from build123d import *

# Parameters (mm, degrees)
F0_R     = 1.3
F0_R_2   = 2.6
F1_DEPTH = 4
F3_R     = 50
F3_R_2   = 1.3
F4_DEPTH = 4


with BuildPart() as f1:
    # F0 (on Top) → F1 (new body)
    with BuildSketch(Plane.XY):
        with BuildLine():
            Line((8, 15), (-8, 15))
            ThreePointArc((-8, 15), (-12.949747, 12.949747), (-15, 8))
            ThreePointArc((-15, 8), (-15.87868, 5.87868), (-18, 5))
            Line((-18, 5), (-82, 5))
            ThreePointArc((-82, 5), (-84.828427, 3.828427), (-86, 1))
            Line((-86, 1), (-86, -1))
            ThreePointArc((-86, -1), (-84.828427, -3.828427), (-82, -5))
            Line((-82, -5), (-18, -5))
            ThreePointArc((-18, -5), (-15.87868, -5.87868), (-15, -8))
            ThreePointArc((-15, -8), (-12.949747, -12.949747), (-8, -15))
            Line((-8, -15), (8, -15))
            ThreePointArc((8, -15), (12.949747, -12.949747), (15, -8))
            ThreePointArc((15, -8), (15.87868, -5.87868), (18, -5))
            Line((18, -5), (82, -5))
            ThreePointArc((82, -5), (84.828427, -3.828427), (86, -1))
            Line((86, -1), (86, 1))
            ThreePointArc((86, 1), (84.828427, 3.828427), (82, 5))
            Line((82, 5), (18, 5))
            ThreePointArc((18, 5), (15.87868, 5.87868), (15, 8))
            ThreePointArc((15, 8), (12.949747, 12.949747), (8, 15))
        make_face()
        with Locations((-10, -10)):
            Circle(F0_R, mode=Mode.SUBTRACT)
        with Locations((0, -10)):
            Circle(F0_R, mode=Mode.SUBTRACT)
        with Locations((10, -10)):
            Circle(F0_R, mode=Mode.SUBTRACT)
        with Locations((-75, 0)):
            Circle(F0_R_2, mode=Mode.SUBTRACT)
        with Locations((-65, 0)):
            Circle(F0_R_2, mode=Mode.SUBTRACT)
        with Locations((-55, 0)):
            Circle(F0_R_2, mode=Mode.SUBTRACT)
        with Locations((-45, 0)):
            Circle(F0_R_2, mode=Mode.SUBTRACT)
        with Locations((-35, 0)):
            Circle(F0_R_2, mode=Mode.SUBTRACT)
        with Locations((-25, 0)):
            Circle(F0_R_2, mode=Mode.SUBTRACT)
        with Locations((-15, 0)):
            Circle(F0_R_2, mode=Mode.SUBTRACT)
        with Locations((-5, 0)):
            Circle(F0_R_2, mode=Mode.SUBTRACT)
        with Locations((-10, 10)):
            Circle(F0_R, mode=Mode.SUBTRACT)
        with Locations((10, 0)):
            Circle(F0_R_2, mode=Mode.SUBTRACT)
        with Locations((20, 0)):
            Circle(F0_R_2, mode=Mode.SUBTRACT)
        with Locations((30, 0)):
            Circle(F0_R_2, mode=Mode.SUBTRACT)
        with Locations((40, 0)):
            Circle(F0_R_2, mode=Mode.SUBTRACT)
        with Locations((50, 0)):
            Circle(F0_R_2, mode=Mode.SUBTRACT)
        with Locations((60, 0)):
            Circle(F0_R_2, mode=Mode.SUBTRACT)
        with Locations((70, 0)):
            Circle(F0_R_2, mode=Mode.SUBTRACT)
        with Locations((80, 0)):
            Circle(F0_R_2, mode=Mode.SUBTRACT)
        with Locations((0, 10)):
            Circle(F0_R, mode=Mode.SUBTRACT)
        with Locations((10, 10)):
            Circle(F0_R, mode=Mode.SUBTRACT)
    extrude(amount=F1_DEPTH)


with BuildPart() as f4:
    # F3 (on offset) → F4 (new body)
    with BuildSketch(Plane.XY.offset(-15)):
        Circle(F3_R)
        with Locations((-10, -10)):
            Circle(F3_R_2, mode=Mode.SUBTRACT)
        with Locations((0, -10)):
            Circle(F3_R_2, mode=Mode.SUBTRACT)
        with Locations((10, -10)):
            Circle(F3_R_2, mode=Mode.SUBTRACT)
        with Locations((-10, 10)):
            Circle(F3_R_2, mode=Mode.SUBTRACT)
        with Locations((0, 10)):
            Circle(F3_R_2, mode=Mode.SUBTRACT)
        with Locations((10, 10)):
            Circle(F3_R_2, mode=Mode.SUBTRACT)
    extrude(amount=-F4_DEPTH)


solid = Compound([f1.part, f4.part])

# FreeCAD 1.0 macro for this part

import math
import FreeCAD as App
import Part
import Sketcher

V = App.Vector

doc = App.newDocument("Part")
body = doc.addObject("PartDesign::Body", "Body")

# Sketch on XY plane
sketch1 = body.newObject("Sketcher::SketchObject", "Sketch")
sketch1.AttachmentSupport = (doc.getObject("XY_Plane"), [""])
sketch1.MapMode = "FlatFace"
sketch1.addGeometry([
    Part.LineSegment(V(8, 15, 0), V(-8, 15, 0)),  # 0
    Part.ArcOfCircle(Part.Circle(V(-7.999998, 7.999998, 0), V(0, 0, 1), 7.000002), math.radians(90.000013), math.radians(179.999987)),  # 1
    Part.ArcOfCircle(Part.Circle(V(-18.000001, 8.000001, 0), V(0, 0, 1), 3.000001), math.radians(-89.999978), math.radians(-0.000022)),  # 2
    Part.LineSegment(V(-18, 5, 0), V(-82, 5, 0)),  # 3
    Part.ArcOfCircle(Part.Circle(V(-82, 1, 0), V(0, 0, 1), 4), math.radians(90.000006), math.radians(179.999994)),  # 4
    Part.LineSegment(V(-86, 1, 0), V(-86, -1, 0)),  # 5
    Part.ArcOfCircle(Part.Circle(V(-82, -1, 0), V(0, 0, 1), 4), math.radians(-179.999994), math.radians(-90.000006)),  # 6
    Part.LineSegment(V(-82, -5, 0), V(-18, -5, 0)),  # 7
    Part.ArcOfCircle(Part.Circle(V(-18.000001, -8.000001, 0), V(0, 0, 1), 3.000001), math.radians(0.000022), math.radians(89.999978)),  # 8
    Part.ArcOfCircle(Part.Circle(V(-7.999998, -7.999998, 0), V(0, 0, 1), 7.000002), math.radians(-179.999987), math.radians(-90.000013)),  # 9
    Part.LineSegment(V(-8, -15, 0), V(8, -15, 0)),  # 10
    Part.ArcOfCircle(Part.Circle(V(7.999998, -7.999998, 0), V(0, 0, 1), 7.000002), math.radians(-89.999987), math.radians(-0.000013)),  # 11
    Part.ArcOfCircle(Part.Circle(V(18.000001, -8.000001, 0), V(0, 0, 1), 3.000001), math.radians(90.000022), math.radians(179.999978)),  # 12
    Part.LineSegment(V(18, -5, 0), V(82, -5, 0)),  # 13
    Part.ArcOfCircle(Part.Circle(V(82, -1, 0), V(0, 0, 1), 4), math.radians(-89.999994), math.radians(-0.000006)),  # 14
    Part.LineSegment(V(86, -1, 0), V(86, 1, 0)),  # 15
    Part.ArcOfCircle(Part.Circle(V(82, 1, 0), V(0, 0, 1), 4), math.radians(0.000006), math.radians(89.999994)),  # 16
    Part.LineSegment(V(82, 5, 0), V(18, 5, 0)),  # 17
    Part.ArcOfCircle(Part.Circle(V(18.000001, 8.000001, 0), V(0, 0, 1), 3.000001), math.radians(-179.999978), math.radians(-90.000022)),  # 18
    Part.ArcOfCircle(Part.Circle(V(7.999998, 7.999998, 0), V(0, 0, 1), 7.000002), math.radians(0.000013), math.radians(89.999987)),  # 19
    Part.Circle(V(-10, -10, 0), V(0, 0, 1), 1.3),  # 20
    Part.Circle(V(0, -10, 0), V(0, 0, 1), 1.3),  # 21
    Part.Circle(V(10, -10, 0), V(0, 0, 1), 1.3),  # 22
    Part.Circle(V(-75, 0, 0), V(0, 0, 1), 2.6),  # 23
    Part.Circle(V(-65, 0, 0), V(0, 0, 1), 2.6),  # 24
    Part.Circle(V(-55, 0, 0), V(0, 0, 1), 2.6),  # 25
    Part.Circle(V(-45, 0, 0), V(0, 0, 1), 2.6),  # 26
    Part.Circle(V(-35, 0, 0), V(0, 0, 1), 2.6),  # 27
    Part.Circle(V(-25, 0, 0), V(0, 0, 1), 2.6),  # 28
    Part.Circle(V(-15, 0, 0), V(0, 0, 1), 2.6),  # 29
    Part.Circle(V(-5, 0, 0), V(0, 0, 1), 2.6),  # 30
    Part.Circle(V(-10, 10, 0), V(0, 0, 1), 1.3),  # 31
    Part.Circle(V(0, 10, 0), V(0, 0, 1), 1.3),  # 32
    Part.Circle(V(10, 0, 0), V(0, 0, 1), 2.6),  # 33
    Part.Circle(V(20, 0, 0), V(0, 0, 1), 2.6),  # 34
    Part.Circle(V(30, 0, 0), V(0, 0, 1), 2.6),  # 35
    Part.Circle(V(40, 0, 0), V(0, 0, 1), 2.6),  # 36
    Part.Circle(V(50, 0, 0), V(0, 0, 1), 2.6),  # 37
    Part.Circle(V(60, 0, 0), V(0, 0, 1), 2.6),  # 38
    Part.Circle(V(70, 0, 0), V(0, 0, 1), 2.6),  # 39
    Part.Circle(V(80, 0, 0), V(0, 0, 1), 2.6),  # 40
    Part.Circle(V(10, 10, 0), V(0, 0, 1), 1.3),  # 41
], False)
sketch1.addConstraint([
    Sketcher.Constraint("Tangent", 0, 2, 1, 1),
    Sketcher.Constraint("Tangent", 1, 2, 2, 2),
    Sketcher.Constraint("Tangent", 2, 1, 3, 1),
    Sketcher.Constraint("Tangent", 3, 2, 4, 1),
    Sketcher.Constraint("Tangent", 4, 2, 5, 1),
    Sketcher.Constraint("Tangent", 5, 2, 6, 1),
    Sketcher.Constraint("Tangent", 6, 2, 7, 1),
    Sketcher.Constraint("Tangent", 7, 2, 8, 2),
    Sketcher.Constraint("Tangent", 8, 1, 9, 1),
    Sketcher.Constraint("Tangent", 9, 2, 10, 1),
    Sketcher.Constraint("Tangent", 10, 2, 11, 1),
    Sketcher.Constraint("Tangent", 11, 2, 12, 2),
    Sketcher.Constraint("Tangent", 12, 1, 13, 1),
    Sketcher.Constraint("Tangent", 13, 2, 14, 1),
    Sketcher.Constraint("Tangent", 14, 2, 15, 1),
    Sketcher.Constraint("Tangent", 15, 2, 16, 1),
    Sketcher.Constraint("Tangent", 16, 2, 17, 1),
    Sketcher.Constraint("Tangent", 17, 2, 18, 2),
    Sketcher.Constraint("Tangent", 18, 1, 19, 1),
    Sketcher.Constraint("Tangent", 19, 2, 0, 1),
    Sketcher.Constraint("Horizontal", 0),
    Sketcher.Constraint("Horizontal", 3),
    Sketcher.Constraint("Vertical", 5),
    Sketcher.Constraint("Horizontal", 7),
    Sketcher.Constraint("Horizontal", 10),
    Sketcher.Constraint("Horizontal", 13),
    Sketcher.Constraint("Vertical", 15),
    Sketcher.Constraint("Horizontal", 17),
    Sketcher.Constraint("Equal", 4, 6),
    Sketcher.Constraint("Equal", 2, 8),
    Sketcher.Constraint("Equal", 1, 9),
    Sketcher.Constraint("Equal", 9, 11),
    Sketcher.Constraint("Equal", 8, 12),
    Sketcher.Constraint("Equal", 6, 14),
    Sketcher.Constraint("Equal", 14, 16),
    Sketcher.Constraint("Equal", 12, 18),
    Sketcher.Constraint("Equal", 11, 19),
    Sketcher.Constraint("Equal", 20, 21),
    Sketcher.Constraint("Equal", 21, 22),
    Sketcher.Constraint("Equal", 23, 24),
    Sketcher.Constraint("Equal", 24, 25),
    Sketcher.Constraint("Equal", 25, 26),
    Sketcher.Constraint("Equal", 26, 27),
    Sketcher.Constraint("Equal", 27, 28),
    Sketcher.Constraint("Equal", 28, 29),
    Sketcher.Constraint("Equal", 29, 30),
    Sketcher.Constraint("Equal", 22, 31),
    Sketcher.Constraint("Equal", 31, 32),
    Sketcher.Constraint("Equal", 30, 33),
    Sketcher.Constraint("Equal", 33, 34),
    Sketcher.Constraint("Equal", 34, 35),
    Sketcher.Constraint("Equal", 35, 36),
    Sketcher.Constraint("Equal", 36, 37),
    Sketcher.Constraint("Equal", 37, 38),
    Sketcher.Constraint("Equal", 38, 39),
    Sketcher.Constraint("Equal", 39, 40),
    Sketcher.Constraint("Equal", 32, 41),
    Sketcher.Constraint("Symmetric", 1, 3, 11, 3, -1, 1),
    Sketcher.Constraint("Symmetric", 4, 3, 14, 3, -1, 1),
    Sketcher.Constraint("Symmetric", 8, 3, 18, 3, -1, 1),
    Sketcher.Constraint("Symmetric", 22, 3, 31, 3, -1, 1),
    Sketcher.Constraint("Symmetric", 21, 3, 32, 3, -1, 1),
    Sketcher.Constraint("Symmetric", 20, 3, 41, 3, -1, 1),
    Sketcher.Constraint("Symmetric", 8, 3, 12, 3, -2),
    Sketcher.Constraint("Symmetric", 20, 3, 22, 3, -2),
    Sketcher.Constraint("PointOnObject", 21, 3, -2),
    Sketcher.Constraint("PointOnObject", 23, 3, -1),
    Sketcher.Constraint("PointOnObject", 24, 3, -1),
    Sketcher.Constraint("PointOnObject", 25, 3, -1),
    Sketcher.Constraint("PointOnObject", 26, 3, -1),
    Sketcher.Constraint("PointOnObject", 27, 3, -1),
    Sketcher.Constraint("PointOnObject", 28, 3, -1),
    Sketcher.Constraint("PointOnObject", 29, 3, -1),
    Sketcher.Constraint("PointOnObject", 30, 3, -1),
    Sketcher.Constraint("PointOnObject", 33, 3, -1),
    Sketcher.Constraint("PointOnObject", 34, 3, -1),
    Sketcher.Constraint("PointOnObject", 35, 3, -1),
    Sketcher.Constraint("PointOnObject", 36, 3, -1),
    Sketcher.Constraint("PointOnObject", 37, 3, -1),
    Sketcher.Constraint("PointOnObject", 38, 3, -1),
    Sketcher.Constraint("PointOnObject", 39, 3, -1),
    Sketcher.Constraint("PointOnObject", 40, 3, -1),
    Sketcher.Constraint("Horizontal", 20, 3, 21, 3),
    Sketcher.Constraint("Horizontal", 19, 3, 1, 2),
    Sketcher.Constraint("Vertical", 22, 3, 33, 3),
    Sketcher.Constraint("Vertical", 29, 3, 1, 2),
    Sketcher.Constraint("Radius", 1, 7.000002),
    Sketcher.Constraint("Radius", 2, 3.000001),
    Sketcher.Constraint("Radius", 4, 4.0),
    Sketcher.Constraint("Diameter", 20, 2.6),
    Sketcher.Constraint("Diameter", 23, 5.2),
    Sketcher.Constraint("DistanceX", 0, 2, 0, 1, 16.0),
    Sketcher.Constraint("DistanceX", 3, 2, 3, 1, 64.0),
    Sketcher.Constraint("DistanceY", 5, 2, 5, 1, 2.0),
    Sketcher.Constraint("DistanceX", 20, 3, -1, 1, 10.0),
    Sketcher.Constraint("DistanceY", 20, 3, -1, 1, 10.0),
    Sketcher.Constraint("DistanceX", 23, 3, -1, 1, 75.0),
    Sketcher.Constraint("DistanceX", 24, 3, -1, 1, 65.0),
    Sketcher.Constraint("DistanceX", 25, 3, -1, 1, 55.0),
    Sketcher.Constraint("DistanceX", 26, 3, -1, 1, 45.0),
    Sketcher.Constraint("DistanceX", 27, 3, -1, 1, 35.0),
    Sketcher.Constraint("DistanceX", 28, 3, -1, 1, 25.0),
    Sketcher.Constraint("DistanceX", 30, 3, -1, 1, 5.0),
    Sketcher.Constraint("DistanceX", -1, 1, 34, 3, 20.0),
    Sketcher.Constraint("DistanceX", -1, 1, 35, 3, 30.0),
    Sketcher.Constraint("DistanceX", -1, 1, 36, 3, 40.0),
    Sketcher.Constraint("DistanceX", -1, 1, 37, 3, 50.0),
    Sketcher.Constraint("DistanceX", -1, 1, 38, 3, 60.0),
    Sketcher.Constraint("DistanceX", -1, 1, 39, 3, 70.0),
    Sketcher.Constraint("DistanceX", -1, 1, 40, 3, 80.0),
])
pad1 = body.newObject("PartDesign::Pad", "Pad")
pad1.Profile = sketch1
pad1.Length = 4
body2 = doc.addObject("PartDesign::Body", "Body001")

# Sketch on XY plane
sketch2 = body2.newObject("Sketcher::SketchObject", "Sketch001")
sketch2.AttachmentSupport = (doc.getObject("XY_Plane001"), [""])
sketch2.MapMode = "FlatFace"
sketch2.AttachmentOffset = App.Placement(V(0, 0, -15), App.Rotation())
sketch2.addGeometry([
    Part.Circle(V(0, 0, 0), V(0, 0, 1), 50),  # 0
    Part.Circle(V(-10, -10, 0), V(0, 0, 1), 1.3),  # 1
    Part.Circle(V(0, -10, 0), V(0, 0, 1), 1.3),  # 2
    Part.Circle(V(10, -10, 0), V(0, 0, 1), 1.3),  # 3
    Part.Circle(V(-10, 10, 0), V(0, 0, 1), 1.3),  # 4
    Part.Circle(V(0, 10, 0), V(0, 0, 1), 1.3),  # 5
    Part.Circle(V(10, 10, 0), V(0, 0, 1), 1.3),  # 6
], False)
sketch2.addConstraint([
    Sketcher.Constraint("Coincident", 0, 3, -1, 1),
    Sketcher.Constraint("Equal", 1, 2),
    Sketcher.Constraint("Equal", 2, 3),
    Sketcher.Constraint("Equal", 3, 4),
    Sketcher.Constraint("Equal", 4, 5),
    Sketcher.Constraint("Equal", 5, 6),
    Sketcher.Constraint("Symmetric", 3, 3, 4, 3, -1, 1),
    Sketcher.Constraint("Symmetric", 2, 3, 5, 3, -1, 1),
    Sketcher.Constraint("Symmetric", 1, 3, 6, 3, -1, 1),
    Sketcher.Constraint("Symmetric", 1, 3, 3, 3, -2),
    Sketcher.Constraint("PointOnObject", 2, 3, -2),
    Sketcher.Constraint("Horizontal", 1, 3, 2, 3),
    Sketcher.Constraint("Diameter", 0, 100.0),
    Sketcher.Constraint("Diameter", 1, 2.6),
    Sketcher.Constraint("DistanceX", 1, 3, -1, 1, 10.0),
    Sketcher.Constraint("DistanceY", 1, 3, -1, 1, 10.0),
])
pad2 = body2.newObject("PartDesign::Pad", "Pad001")
pad2.Profile = sketch2
pad2.Length = 4
pad2.Reversed = True

doc.recompute()
